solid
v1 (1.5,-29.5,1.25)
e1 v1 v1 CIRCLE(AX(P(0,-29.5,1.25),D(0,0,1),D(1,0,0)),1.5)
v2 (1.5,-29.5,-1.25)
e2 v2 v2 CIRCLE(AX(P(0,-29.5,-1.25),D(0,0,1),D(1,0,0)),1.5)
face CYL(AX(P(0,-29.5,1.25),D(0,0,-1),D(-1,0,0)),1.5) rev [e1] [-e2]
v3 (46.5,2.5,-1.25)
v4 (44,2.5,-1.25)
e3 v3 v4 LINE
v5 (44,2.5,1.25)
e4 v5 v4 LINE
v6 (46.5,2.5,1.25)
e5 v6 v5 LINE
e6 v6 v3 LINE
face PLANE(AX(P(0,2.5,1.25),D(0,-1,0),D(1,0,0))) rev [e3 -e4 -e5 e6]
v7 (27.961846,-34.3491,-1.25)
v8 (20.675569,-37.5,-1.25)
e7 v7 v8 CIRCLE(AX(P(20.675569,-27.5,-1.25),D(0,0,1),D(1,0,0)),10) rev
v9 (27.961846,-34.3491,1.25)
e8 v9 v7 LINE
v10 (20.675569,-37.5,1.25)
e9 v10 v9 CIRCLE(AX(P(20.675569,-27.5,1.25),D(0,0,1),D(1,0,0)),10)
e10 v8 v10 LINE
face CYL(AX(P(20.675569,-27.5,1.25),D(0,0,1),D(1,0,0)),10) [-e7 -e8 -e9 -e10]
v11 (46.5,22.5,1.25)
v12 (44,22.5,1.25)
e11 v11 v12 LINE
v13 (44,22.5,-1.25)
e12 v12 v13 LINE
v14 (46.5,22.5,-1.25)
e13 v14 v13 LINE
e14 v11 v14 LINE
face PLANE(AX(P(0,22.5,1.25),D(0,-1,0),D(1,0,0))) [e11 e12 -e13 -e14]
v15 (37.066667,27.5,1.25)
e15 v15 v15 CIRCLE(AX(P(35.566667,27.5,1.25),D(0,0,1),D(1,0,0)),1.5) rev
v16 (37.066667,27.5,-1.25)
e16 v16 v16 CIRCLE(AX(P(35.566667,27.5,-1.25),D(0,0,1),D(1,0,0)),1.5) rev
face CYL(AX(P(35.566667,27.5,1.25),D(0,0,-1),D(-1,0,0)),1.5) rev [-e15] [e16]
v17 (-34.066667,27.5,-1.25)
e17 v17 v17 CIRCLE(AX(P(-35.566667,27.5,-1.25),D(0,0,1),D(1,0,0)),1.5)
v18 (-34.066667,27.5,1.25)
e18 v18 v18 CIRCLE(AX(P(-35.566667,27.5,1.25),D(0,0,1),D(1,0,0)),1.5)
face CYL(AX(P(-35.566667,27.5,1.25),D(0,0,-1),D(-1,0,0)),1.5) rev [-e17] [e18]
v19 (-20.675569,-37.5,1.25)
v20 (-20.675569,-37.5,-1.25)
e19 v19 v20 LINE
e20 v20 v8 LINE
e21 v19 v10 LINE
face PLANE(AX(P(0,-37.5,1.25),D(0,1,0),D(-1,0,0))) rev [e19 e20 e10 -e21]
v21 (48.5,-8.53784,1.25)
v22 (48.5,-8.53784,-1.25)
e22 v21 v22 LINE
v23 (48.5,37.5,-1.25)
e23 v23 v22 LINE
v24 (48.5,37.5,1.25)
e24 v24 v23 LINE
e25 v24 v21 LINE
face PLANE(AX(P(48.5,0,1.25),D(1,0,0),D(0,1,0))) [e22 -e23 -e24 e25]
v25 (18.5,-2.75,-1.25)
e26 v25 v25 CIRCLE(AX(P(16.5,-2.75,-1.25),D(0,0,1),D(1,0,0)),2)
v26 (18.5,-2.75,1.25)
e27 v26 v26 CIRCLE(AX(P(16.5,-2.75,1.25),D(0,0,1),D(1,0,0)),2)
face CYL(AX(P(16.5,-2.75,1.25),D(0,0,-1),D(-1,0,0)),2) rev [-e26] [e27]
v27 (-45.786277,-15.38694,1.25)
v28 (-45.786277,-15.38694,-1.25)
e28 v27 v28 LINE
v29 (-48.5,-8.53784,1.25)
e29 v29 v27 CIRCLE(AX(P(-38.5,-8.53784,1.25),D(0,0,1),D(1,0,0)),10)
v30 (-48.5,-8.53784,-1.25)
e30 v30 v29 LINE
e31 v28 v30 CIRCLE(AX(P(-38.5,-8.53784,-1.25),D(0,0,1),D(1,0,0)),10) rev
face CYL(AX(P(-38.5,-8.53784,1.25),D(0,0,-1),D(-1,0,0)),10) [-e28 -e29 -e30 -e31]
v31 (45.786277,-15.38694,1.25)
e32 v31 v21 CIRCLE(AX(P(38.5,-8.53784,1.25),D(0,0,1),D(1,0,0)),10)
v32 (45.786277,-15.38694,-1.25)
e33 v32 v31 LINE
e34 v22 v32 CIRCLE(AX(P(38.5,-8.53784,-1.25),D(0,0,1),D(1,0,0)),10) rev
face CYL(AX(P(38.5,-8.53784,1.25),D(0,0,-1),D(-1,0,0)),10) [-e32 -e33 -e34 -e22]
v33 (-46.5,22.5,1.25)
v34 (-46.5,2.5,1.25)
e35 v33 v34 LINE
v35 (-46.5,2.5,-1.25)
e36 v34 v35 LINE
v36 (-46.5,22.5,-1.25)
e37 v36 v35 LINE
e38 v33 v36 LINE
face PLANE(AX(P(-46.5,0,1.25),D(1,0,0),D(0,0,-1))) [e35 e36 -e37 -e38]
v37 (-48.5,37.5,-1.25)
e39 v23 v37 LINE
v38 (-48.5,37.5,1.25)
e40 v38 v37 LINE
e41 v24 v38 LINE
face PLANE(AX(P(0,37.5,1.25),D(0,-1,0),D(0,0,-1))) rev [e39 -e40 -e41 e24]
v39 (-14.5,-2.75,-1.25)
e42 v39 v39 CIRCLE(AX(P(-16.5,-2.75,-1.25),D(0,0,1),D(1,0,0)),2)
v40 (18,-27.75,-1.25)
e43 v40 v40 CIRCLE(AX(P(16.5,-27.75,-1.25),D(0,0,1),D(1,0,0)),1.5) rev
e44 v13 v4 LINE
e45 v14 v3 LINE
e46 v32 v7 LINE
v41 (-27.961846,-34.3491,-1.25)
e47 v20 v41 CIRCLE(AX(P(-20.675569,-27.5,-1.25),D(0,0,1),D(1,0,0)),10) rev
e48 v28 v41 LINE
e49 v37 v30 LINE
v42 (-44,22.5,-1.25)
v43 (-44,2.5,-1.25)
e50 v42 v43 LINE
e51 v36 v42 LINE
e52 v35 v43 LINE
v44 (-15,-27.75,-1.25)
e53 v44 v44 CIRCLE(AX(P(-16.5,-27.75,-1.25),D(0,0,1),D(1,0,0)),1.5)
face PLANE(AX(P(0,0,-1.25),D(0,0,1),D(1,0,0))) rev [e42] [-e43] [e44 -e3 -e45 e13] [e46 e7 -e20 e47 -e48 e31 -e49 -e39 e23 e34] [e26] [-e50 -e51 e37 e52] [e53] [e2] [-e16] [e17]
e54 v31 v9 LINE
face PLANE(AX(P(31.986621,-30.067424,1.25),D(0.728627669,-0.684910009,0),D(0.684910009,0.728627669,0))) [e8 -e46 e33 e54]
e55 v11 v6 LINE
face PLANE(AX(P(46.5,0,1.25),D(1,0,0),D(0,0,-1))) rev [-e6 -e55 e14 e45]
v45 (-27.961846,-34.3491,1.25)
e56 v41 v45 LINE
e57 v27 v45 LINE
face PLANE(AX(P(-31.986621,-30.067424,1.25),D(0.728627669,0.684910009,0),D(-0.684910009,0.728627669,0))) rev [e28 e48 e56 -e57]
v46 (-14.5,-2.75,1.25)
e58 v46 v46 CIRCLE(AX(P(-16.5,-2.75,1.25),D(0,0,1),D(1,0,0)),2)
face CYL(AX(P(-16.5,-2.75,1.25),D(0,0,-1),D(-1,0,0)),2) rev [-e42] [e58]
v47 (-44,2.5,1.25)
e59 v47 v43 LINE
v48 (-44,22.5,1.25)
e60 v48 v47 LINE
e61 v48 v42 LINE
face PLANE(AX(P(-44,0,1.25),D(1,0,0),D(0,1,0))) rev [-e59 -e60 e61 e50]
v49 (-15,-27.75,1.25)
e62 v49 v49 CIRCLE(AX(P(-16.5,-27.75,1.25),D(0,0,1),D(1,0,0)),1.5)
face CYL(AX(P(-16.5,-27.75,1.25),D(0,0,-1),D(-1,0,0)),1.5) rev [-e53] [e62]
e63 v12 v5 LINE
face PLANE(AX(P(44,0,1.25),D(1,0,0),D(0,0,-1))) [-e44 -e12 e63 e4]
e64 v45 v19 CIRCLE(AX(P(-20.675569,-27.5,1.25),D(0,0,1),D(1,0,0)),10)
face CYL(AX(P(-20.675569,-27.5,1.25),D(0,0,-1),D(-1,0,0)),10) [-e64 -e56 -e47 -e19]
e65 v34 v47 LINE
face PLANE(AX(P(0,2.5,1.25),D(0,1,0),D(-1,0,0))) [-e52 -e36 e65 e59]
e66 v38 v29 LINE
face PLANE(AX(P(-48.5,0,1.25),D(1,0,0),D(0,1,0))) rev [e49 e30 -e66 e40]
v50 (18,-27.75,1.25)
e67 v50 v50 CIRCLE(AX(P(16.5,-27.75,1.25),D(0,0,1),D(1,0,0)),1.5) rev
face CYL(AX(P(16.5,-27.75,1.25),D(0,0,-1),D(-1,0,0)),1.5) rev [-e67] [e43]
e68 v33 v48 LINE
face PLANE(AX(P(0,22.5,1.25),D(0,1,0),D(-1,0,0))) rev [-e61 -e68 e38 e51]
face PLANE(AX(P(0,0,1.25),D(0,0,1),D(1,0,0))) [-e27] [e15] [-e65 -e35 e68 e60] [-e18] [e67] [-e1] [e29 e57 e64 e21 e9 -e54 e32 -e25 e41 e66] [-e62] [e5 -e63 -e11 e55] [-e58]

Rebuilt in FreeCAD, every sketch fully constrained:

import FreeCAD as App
import Part
import Sketcher


def edges_at(feature, points):
    """Names of the edges that pass closest to the given points."""
    edges = feature.Shape.Edges
    near = lambda p: min(range(len(edges)), key=lambda i: edges[i].distToShape(Part.Vertex(*p))[0])
    return sorted({f"Edge{near(p) + 1}" for p in points})

doc = App.newDocument("Part")
params = doc.addObject("Spreadsheet::Sheet", "Params")
for row, (alias, value) in enumerate([
    ("sketch1_diameter", "3 mm"),
    ("sketch1_diameter2", "4 mm"),
    ("sketch1_width", "97 mm"),
    ("sketch1_width2", "50 mm"),
    ("sketch1_height", "20 mm"),
    ("pad1_length", "2.5 mm"),
    ("fillet_radius", "10 mm"),
], start=1):
    params.set(f"A{row}", alias)
    params.set(f"B{row}", "=" + value)
    params.setAlias(f"B{row}", alias)

body = doc.addObject("PartDesign::Body", "Body")

# Sketch on XY plane
sketch1 = doc.addObject("Sketcher::SketchObject", "Sketch")
body.addObject(sketch1)
sketch1.AttachmentSupport = (doc.XY_Plane, [""])
sketch1.MapMode = "FlatFace"
sketch1.addGeometry(Part.LineSegment(App.Vector(48.5, 37.5, 0), App.Vector(-48.5, 37.5, 0)), False)
sketch1.addGeometry(Part.LineSegment(App.Vector(-48.5, 37.5, 0), App.Vector(-48.5, -12.5, 0)), False)
sketch1.addGeometry(Part.LineSegment(App.Vector(-48.5, -12.5, 0), App.Vector(-25, -37.5, 0)), False)
sketch1.addGeometry(Part.LineSegment(App.Vector(-25, -37.5, 0), App.Vector(25, -37.5, 0)), False)
sketch1.addGeometry(Part.LineSegment(App.Vector(25, -37.5, 0), App.Vector(48.5, -12.5, 0)), False)
sketch1.addGeometry(Part.LineSegment(App.Vector(48.5, -12.5, 0), App.Vector(48.5, 37.5, 0)), False)
sketch1.addGeometry(Part.Circle(App.Vector(-16.5, -27.8, 0), App.Vector(0, 0, 1), 1.5), False)
sketch1.addGeometry(Part.Circle(App.Vector(-16.5, -2.8, 0), App.Vector(0, 0, 1), 2), False)
sketch1.addGeometry(Part.Circle(App.Vector(0, -29.5, 0), App.Vector(0, 0, 1), 1.5), False)
sketch1.addGeometry(Part.Circle(App.Vector(16.5, -27.8, 0), App.Vector(0, 0, 1), 1.5), False)
sketch1.addGeometry(Part.Circle(App.Vector(16.5, -2.8, 0), App.Vector(0, 0, 1), 2), False)
sketch1.addGeometry(Part.LineSegment(App.Vector(-44, 2.5, 0), App.Vector(-46.5, 2.5, 0)), False)
sketch1.addGeometry(Part.LineSegment(App.Vector(-46.5, 2.5, 0), App.Vector(-46.5, 22.5, 0)), False)
sketch1.addGeometry(Part.LineSegment(App.Vector(-46.5, 22.5, 0), App.Vector(-44, 22.5, 0)), False)
sketch1.addGeometry(Part.LineSegment(App.Vector(-44, 22.5, 0), App.Vector(-44, 2.5, 0)), False)
sketch1.addGeometry(Part.Circle(App.Vector(-35.6, 27.5, 0), App.Vector(0, 0, 1), 1.5), False)
sketch1.addGeometry(Part.LineSegment(App.Vector(46.5, 2.5, 0), App.Vector(44, 2.5, 0)), False)
sketch1.addGeometry(Part.LineSegment(App.Vector(44, 2.5, 0), App.Vector(44, 22.5, 0)), False)
sketch1.addGeometry(Part.LineSegment(App.Vector(44, 22.5, 0), App.Vector(46.5, 22.5, 0)), False)
sketch1.addGeometry(Part.LineSegment(App.Vector(46.5, 22.5, 0), App.Vector(46.5, 2.5, 0)), False)
sketch1.addGeometry(Part.Circle(App.Vector(35.6, 27.5, 0), App.Vector(0, 0, 1), 1.5), False)
sketch1.addConstraint(Sketcher.Constraint("Coincident", 0, 2, 1, 1))
sketch1.addConstraint(Sketcher.Constraint("Coincident", 1, 2, 2, 1))
sketch1.addConstraint(Sketcher.Constraint("Coincident", 2, 2, 3, 1))
sketch1.addConstraint(Sketcher.Constraint("Coincident", 3, 2, 4, 1))
sketch1.addConstraint(Sketcher.Constraint("Coincident", 4, 2, 5, 1))
sketch1.addConstraint(Sketcher.Constraint("Coincident", 5, 2, 0, 1))
sketch1.addConstraint(Sketcher.Constraint("Coincident", 11, 2, 12, 1))
sketch1.addConstraint(Sketcher.Constraint("Coincident", 12, 2, 13, 1))
sketch1.addConstraint(Sketcher.Constraint("Coincident", 13, 2, 14, 1))
sketch1.addConstraint(Sketcher.Constraint("Coincident", 14, 2, 11, 1))
sketch1.addConstraint(Sketcher.Constraint("Coincident", 16, 2, 17, 1))
sketch1.addConstraint(Sketcher.Constraint("Coincident", 17, 2, 18, 1))
sketch1.addConstraint(Sketcher.Constraint("Coincident", 18, 2, 19, 1))
sketch1.addConstraint(Sketcher.Constraint("Coincident", 19, 2, 16, 1))
sketch1.addConstraint(Sketcher.Constraint("Horizontal", 0))
sketch1.addConstraint(Sketcher.Constraint("Vertical", 1))
sketch1.addConstraint(Sketcher.Constraint("Horizontal", 3))
sketch1.addConstraint(Sketcher.Constraint("Vertical", 5))
sketch1.addConstraint(Sketcher.Constraint("Horizontal", 11))
sketch1.addConstraint(Sketcher.Constraint("Vertical", 12))
sketch1.addConstraint(Sketcher.Constraint("Horizontal", 13))
sketch1.addConstraint(Sketcher.Constraint("Vertical", 14))
sketch1.addConstraint(Sketcher.Constraint("Horizontal", 16))
sketch1.addConstraint(Sketcher.Constraint("Vertical", 17))
sketch1.addConstraint(Sketcher.Constraint("Horizontal", 18))
sketch1.addConstraint(Sketcher.Constraint("Vertical", 19))
sketch1.addConstraint(Sketcher.Constraint("Equal", 6, 8))
sketch1.addConstraint(Sketcher.Constraint("Equal", 8, 9))
sketch1.addConstraint(Sketcher.Constraint("Equal", 7, 10))
sketch1.addConstraint(Sketcher.Constraint("Equal", 9, 15))
sketch1.addConstraint(Sketcher.Constraint("Equal", 15, 20))
sketch1.addConstraint(Sketcher.Constraint("Symmetric", 6, 3, 9, 3, -2))
sketch1.addConstraint(Sketcher.Constraint("Symmetric", 7, 3, 10, 3, -2))
sketch1.addConstraint(Sketcher.Constraint("Symmetric", 15, 3, 20, 3, -2))
sketch1.addConstraint(Sketcher.Constraint("Symmetric", 1, 2, 4, 2, -2))
sketch1.addConstraint(Sketcher.Constraint("Symmetric", 14, 2, 16, 2, -2))
sketch1.addConstraint(Sketcher.Constraint("Symmetric", 12, 2, 18, 2, -2))
sketch1.addConstraint(Sketcher.Constraint("PointOnObject", 8, 3, -2))
sketch1.addConstraint(Sketcher.Constraint("Vertical", 6, 3, 7, 3))
sketch1.addConstraint(Sketcher.Constraint("Equal", 3, 1))
sketch1.addConstraint(Sketcher.Constraint("Equal", 2, 4))
sketch1.addConstraint(Sketcher.Constraint("Diameter", 6, 3.0))
sketch1.addConstraint(Sketcher.Constraint("Diameter", 7, 4.0))
sketch1.addConstraint(Sketcher.Constraint("DistanceX", 0, 2, 0, 1, 97.0))
sketch1.addConstraint(Sketcher.Constraint("DistanceX", 3, 1, 3, 2, 50.0))
sketch1.addConstraint(Sketcher.Constraint("DistanceY", 12, 1, 12, 2, 20.0))
sketch1.addConstraint(Sketcher.Constraint("DistanceX", 11, 2, 11, 1, 2.5))
sketch1.addConstraint(Sketcher.Constraint("DistanceX", 13, 2, -1, 1, 44.0))
sketch1.addConstraint(Sketcher.Constraint("DistanceY", 6, 3, 7, 3, 25.0))
sketch1.addConstraint(Sketcher.Constraint("DistanceX", 6, 3, 9, 3, 33.0))
sketch1.addConstraint(Sketcher.Constraint("DistanceY", 8, 3, 15, 3, 57.0))
sketch1.addConstraint(Sketcher.Constraint("DistanceY", 15, 3, 0, 2, 10.0))
sketch1.addConstraint(Sketcher.Constraint("DistanceY", 2, 2, 8, 3, 8.0))
sketch1.addConstraint(Sketcher.Constraint("DistanceY", 1, 2, 11, 2, 15.0))
sketch1.addConstraint(Sketcher.Constraint("DistanceY", 8, 3, -1, 1, 29.5))
sketch1.addConstraint(Sketcher.Constraint("DistanceY", 6, 3, -1, 1, 27.75))
sketch1.addConstraint(Sketcher.Constraint("DistanceX", 15, 3, -1, 1, 35.566667))
sketch1.setExpression("Constraints[41]", "Params.sketch1_diameter")
sketch1.setExpression("Constraints[42]", "Params.sketch1_diameter2")
sketch1.setExpression("Constraints[43]", "Params.sketch1_width")
sketch1.setExpression("Constraints[44]", "Params.sketch1_width2")
sketch1.setExpression("Constraints[45]", "Params.sketch1_height")
pad1 = doc.addObject("PartDesign::Pad", "Pad")
body.addObject(pad1)
pad1.Profile = sketch1
pad1.setExpression("Length", "Params.pad1_length")
pad1.Midplane = True
doc.recompute()

fillet = doc.addObject("PartDesign::Fillet", "Fillet")
body.addObject(fillet)
fillet.Base = (pad1, edges_at(pad1, [
    (48.5, -12.5, 0),
    (25, -37.5, 0),
    (-25, -37.5, 0),
    (-48.5, -12.5, 0),
]))
fillet.setExpression("Radius", "Params.fillet_radius")

doc.recompute()
